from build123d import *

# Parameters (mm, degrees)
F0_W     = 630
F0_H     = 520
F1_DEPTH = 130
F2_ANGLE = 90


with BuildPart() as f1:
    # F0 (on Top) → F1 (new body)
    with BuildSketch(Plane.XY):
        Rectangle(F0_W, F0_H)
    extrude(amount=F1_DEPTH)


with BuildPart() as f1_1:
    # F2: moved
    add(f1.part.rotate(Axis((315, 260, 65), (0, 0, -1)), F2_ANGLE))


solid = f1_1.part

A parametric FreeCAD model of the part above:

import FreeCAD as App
import Part
import Sketcher
Q = App.Units.Quantity

doc = App.newDocument("Part")
body = doc.addObject("PartDesign::Body", "Body")

# Sketch on XY plane
sketch1 = body.newObject("Sketcher::SketchObject", "Sketch")
sketch1.AttachmentSupport = (doc.getObject("XY_Plane"), [""])
sketch1.MapMode = "FlatFace"
sketch1.addGeometry(Part.LineSegment(App.Vector(-315, 260, 0), App.Vector(-315, -260, 0)), False)
sketch1.addGeometry(Part.LineSegment(App.Vector(-315, -260, 0), App.Vector(315, -260, 0)), False)
sketch1.addGeometry(Part.LineSegment(App.Vector(315, -260, 0), App.Vector(315, 260, 0)), False)
sketch1.addGeometry(Part.LineSegment(App.Vector(315, 260, 0), App.Vector(-315, 260, 0)), False)
sketch1.addConstraint(Sketcher.Constraint("Coincident", 0, 2, 1, 1))
sketch1.addConstraint(Sketcher.Constraint("Coincident", 1, 2, 2, 1))
sketch1.addConstraint(Sketcher.Constraint("Coincident", 2, 2, 3, 1))
sketch1.addConstraint(Sketcher.Constraint("Coincident", 3, 2, 0, 1))
sketch1.addConstraint(Sketcher.Constraint("Vertical", 0))
sketch1.addConstraint(Sketcher.Constraint("Horizontal", 1))
sketch1.addConstraint(Sketcher.Constraint("Vertical", 2))
sketch1.addConstraint(Sketcher.Constraint("Horizontal", 3))
sketch1.addConstraint(Sketcher.Constraint("Symmetric", 0, 2, 2, 2, -1, 1))
sketch1.addConstraint(Sketcher.Constraint("DistanceX", 1, 1, 1, 2, Q("630 mm")))
sketch1.addConstraint(Sketcher.Constraint("DistanceY", 0, 2, 0, 1, Q("520 mm")))
pad1 = body.newObject("PartDesign::Pad", "Pad")
pad1.Profile = sketch1
pad1.Length = 130
body2 = doc.addObject("PartDesign::Body", "Body001")
doc.recompute()

body.Placement = App.Placement(App.Vector(55, 575, 0), App.Rotation(App.Vector(0, 0, -1), 90))
boolean = body2.newObject("PartDesign::Boolean", "Boolean")
boolean.Type = "Fuse"
boolean.addObjects([body])

doc.recompute()
